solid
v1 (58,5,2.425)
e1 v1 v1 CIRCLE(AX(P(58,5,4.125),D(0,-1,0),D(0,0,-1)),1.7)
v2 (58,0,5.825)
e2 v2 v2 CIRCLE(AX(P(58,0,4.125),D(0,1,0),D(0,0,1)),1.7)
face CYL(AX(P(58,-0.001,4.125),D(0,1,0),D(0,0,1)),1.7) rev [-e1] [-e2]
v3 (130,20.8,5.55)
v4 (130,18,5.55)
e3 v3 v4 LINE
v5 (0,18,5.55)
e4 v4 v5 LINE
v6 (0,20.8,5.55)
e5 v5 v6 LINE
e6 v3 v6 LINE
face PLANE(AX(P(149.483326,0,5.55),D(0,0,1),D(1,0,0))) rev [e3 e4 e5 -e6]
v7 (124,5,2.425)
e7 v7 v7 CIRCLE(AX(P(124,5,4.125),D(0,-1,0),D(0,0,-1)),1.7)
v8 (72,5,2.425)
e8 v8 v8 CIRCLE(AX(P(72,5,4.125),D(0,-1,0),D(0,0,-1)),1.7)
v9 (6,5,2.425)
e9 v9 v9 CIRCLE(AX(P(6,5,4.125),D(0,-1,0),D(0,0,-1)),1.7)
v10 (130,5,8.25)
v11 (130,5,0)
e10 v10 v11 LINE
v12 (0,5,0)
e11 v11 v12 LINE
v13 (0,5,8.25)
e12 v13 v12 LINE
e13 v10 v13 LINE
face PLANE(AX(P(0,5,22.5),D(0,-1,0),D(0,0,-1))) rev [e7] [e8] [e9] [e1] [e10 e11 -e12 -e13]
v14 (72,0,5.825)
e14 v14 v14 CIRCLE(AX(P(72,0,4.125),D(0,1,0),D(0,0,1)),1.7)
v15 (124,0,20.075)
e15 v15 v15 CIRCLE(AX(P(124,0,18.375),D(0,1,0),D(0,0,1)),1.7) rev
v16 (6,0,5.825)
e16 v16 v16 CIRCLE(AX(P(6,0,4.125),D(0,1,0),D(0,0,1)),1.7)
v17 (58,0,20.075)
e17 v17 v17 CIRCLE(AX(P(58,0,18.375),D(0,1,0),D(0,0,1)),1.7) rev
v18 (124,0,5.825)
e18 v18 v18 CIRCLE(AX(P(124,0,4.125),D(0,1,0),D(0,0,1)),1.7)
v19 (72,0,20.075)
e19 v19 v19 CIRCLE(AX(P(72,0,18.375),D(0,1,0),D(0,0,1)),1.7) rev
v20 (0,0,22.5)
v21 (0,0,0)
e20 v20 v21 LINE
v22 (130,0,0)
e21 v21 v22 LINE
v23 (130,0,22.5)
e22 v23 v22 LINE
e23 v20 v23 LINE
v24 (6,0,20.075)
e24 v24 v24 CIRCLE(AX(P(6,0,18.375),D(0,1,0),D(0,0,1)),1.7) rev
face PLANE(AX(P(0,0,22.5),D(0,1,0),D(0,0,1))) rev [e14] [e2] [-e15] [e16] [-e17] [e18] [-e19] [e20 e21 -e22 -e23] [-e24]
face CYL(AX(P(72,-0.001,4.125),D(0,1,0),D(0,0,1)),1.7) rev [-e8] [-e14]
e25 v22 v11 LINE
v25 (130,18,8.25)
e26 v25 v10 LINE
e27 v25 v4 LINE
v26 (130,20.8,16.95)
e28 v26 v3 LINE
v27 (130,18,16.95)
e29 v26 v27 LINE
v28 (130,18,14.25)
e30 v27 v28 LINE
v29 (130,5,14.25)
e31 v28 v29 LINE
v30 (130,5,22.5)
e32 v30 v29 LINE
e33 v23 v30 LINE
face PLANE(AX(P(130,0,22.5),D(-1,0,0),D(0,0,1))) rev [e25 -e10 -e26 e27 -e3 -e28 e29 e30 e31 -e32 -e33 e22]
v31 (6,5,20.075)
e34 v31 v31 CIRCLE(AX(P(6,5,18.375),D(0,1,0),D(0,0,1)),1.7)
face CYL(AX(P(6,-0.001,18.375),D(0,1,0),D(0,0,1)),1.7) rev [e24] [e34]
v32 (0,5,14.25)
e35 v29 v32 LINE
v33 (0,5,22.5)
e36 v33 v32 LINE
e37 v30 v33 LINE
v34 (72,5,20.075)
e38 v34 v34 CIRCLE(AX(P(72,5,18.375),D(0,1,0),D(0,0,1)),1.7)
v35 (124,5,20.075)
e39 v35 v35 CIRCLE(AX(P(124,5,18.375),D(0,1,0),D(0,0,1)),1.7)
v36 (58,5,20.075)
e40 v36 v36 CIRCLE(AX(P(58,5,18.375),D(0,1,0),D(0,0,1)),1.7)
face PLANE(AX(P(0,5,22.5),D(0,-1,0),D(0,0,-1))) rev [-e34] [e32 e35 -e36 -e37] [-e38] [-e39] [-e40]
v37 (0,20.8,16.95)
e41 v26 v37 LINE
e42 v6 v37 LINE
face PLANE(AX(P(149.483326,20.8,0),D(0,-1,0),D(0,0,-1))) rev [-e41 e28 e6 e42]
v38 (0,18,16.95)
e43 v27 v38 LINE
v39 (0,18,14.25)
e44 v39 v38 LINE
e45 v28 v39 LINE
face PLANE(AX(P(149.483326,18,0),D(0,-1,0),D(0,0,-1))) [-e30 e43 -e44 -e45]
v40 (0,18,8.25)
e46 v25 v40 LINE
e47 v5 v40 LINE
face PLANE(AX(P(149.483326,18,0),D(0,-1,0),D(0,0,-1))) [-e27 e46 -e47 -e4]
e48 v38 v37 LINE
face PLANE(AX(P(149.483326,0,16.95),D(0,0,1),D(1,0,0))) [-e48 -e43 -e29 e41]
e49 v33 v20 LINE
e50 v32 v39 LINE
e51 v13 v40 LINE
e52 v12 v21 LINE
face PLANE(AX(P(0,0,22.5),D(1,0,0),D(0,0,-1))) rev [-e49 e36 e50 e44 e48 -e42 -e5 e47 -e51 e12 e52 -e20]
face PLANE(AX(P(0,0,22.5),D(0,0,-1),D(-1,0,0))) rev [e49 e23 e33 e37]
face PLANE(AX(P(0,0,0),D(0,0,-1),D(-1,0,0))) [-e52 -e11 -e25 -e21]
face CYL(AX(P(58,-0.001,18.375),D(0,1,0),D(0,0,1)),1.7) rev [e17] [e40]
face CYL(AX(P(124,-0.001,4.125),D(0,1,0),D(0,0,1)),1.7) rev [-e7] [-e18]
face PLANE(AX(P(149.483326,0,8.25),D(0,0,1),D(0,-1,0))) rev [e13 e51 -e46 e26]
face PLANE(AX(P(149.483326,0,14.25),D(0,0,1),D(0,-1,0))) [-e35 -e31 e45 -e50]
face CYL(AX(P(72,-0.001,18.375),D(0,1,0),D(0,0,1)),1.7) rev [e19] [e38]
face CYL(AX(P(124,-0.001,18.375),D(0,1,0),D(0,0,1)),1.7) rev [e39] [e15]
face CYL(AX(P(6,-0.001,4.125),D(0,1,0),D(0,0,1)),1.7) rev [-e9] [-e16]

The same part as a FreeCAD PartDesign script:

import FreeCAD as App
import Part
import Sketcher
from FreeCAD import Vector


def add_polygon(sketch, points):
    """Adds a closed chain of lines whose ends are joined by coincident constraints."""
    first, n = sketch.GeometryCount, len(points)
    for a, b in zip(points, points[1:] + points[:1]):
        sketch.addGeometry(Part.LineSegment(App.Vector(*a, 0), App.Vector(*b, 0)), False)
    for i in range(n):
        sketch.addConstraint(Sketcher.Constraint("Coincident", first + i, 2, first + (i + 1) % n, 1))

doc = App.newDocument("Part")
body = doc.addObject("PartDesign::Body", "Body")

# Sketch on XY plane
sketch1 = body.newObject("Sketcher::SketchObject", "Sketch")
sketch1.AttachmentSupport = (doc.getObject("XY_Plane"), [""])
sketch1.MapMode = "FlatFace"
add_polygon(sketch1, [(0, 5), (0, 0), (130, 0), (130, 5)])  # lines 0-3
sketch1.addConstraint([
    Sketcher.Constraint("Vertical", 0),
    Sketcher.Constraint("Horizontal", 1),
    Sketcher.Constraint("Vertical", 2),
    Sketcher.Constraint("Horizontal", 3),
    Sketcher.Constraint("Coincident", 0, 2, -1, 1),
    Sketcher.Constraint("DistanceX", 1, 1, 1, 2, 130.0),
    Sketcher.Constraint("DistanceY", 0, 2, 0, 1, 5.0),
])
pad1 = body.newObject("PartDesign::Pad", "Pad")
pad1.Profile = sketch1
pad1.Length = 22.5

# Sketch on YZ plane
sketch2 = body.newObject("Sketcher::SketchObject", "Sketch001")
sketch2.AttachmentSupport = (doc.getObject("YZ_Plane"), [""])
sketch2.MapMode = "FlatFace"
add_polygon(sketch2, [(18, 16.9), (20.8, 16.9), (20.8, 5.5), (18, 5.5), (18, 8.2), (5, 8.2), (5, 14.2), (18, 14.2)])  # lines 0-7
sketch2.addConstraint([
    Sketcher.Constraint("Horizontal", 0),
    Sketcher.Constraint("Vertical", 1),
    Sketcher.Constraint("Horizontal", 2),
    Sketcher.Constraint("Vertical", 3),
    Sketcher.Constraint("Horizontal", 4),
    Sketcher.Constraint("Vertical", 5),
    Sketcher.Constraint("Horizontal", 6),
    Sketcher.Constraint("Vertical", 7),
    Sketcher.Constraint("Vertical", 3, 2, 6, 2),
    Sketcher.Constraint("Equal", 3, 7),
    Sketcher.Constraint("DistanceX", 4, 2, 4, 1, 13.0),
    Sketcher.Constraint("DistanceY", 5, 1, 5, 2, 6.0),
    Sketcher.Constraint("DistanceX", 0, 1, 0, 2, 2.8),
    Sketcher.Constraint("DistanceY", 1, 2, 1, 1, 11.4),
    Sketcher.Constraint("DistanceX", -1, 1, 2, 2, 18.0),
    Sketcher.Constraint("DistanceY", -1, 1, 0, 2, 16.95),
])
pad2 = body.newObject("PartDesign::Pad", "Pad001")
pad2.Profile = sketch2
pad2.Length = 130

# Sketch on XZ plane
sketch3 = body.newObject("Sketcher::SketchObject", "Sketch002")
sketch3.AttachmentSupport = (doc.getObject("XZ_Plane"), [""])
sketch3.MapMode = "FlatFace"
sketch3.AttachmentOffset = App.Placement(Vector(0, 0, -5), App.Rotation())
sketch3.addGeometry(Part.Circle(Vector(6, 18.4, 0), Vector(0, 0, 1), 1.7), False)
sketch3.addConstraint([
    Sketcher.Constraint("Diameter", 0, 3.4),
    Sketcher.Constraint("DistanceX", -1, 1, 0, 3, 6.0),
    Sketcher.Constraint("DistanceY", -1, 1, 0, 3, 18.375),
])
pocket1 = body.newObject("PartDesign::Pocket", "Pocket")
pocket1.Profile = sketch3
pocket1.Type = "UpToFirst"
pocket1.Reversed = True

# Sketch on XZ plane
sketch4 = body.newObject("Sketcher::SketchObject", "Sketch003")
sketch4.AttachmentSupport = (doc.getObject("XZ_Plane"), [""])
sketch4.MapMode = "FlatFace"
sketch4.AttachmentOffset = App.Placement(Vector(0, 0, -5), App.Rotation())
sketch4.addGeometry(Part.Circle(Vector(58, 18.4, 0), Vector(0, 0, 1), 1.7), False)
sketch4.addConstraint([
    Sketcher.Constraint("Diameter", 0, 3.4),
    Sketcher.Constraint("DistanceX", -1, 1, 0, 3, 58.0),
    Sketcher.Constraint("DistanceY", -1, 1, 0, 3, 18.375),
])
pocket2 = body.newObject("PartDesign::Pocket", "Pocket001")
pocket2.Profile = sketch4
pocket2.Type = "UpToFirst"
pocket2.Reversed = True

# Sketch on XZ plane
sketch5 = body.newObject("Sketcher::SketchObject", "Sketch004")
sketch5.AttachmentSupport = (doc.getObject("XZ_Plane"), [""])
sketch5.MapMode = "FlatFace"
sketch5.AttachmentOffset = App.Placement(Vector(0, 0, -5), App.Rotation())
sketch5.addGeometry(Part.Circle(Vector(72, 18.4, 0), Vector(0, 0, 1), 1.7), False)
sketch5.addConstraint([
    Sketcher.Constraint("Diameter", 0, 3.4),
    Sketcher.Constraint("DistanceX", -1, 1, 0, 3, 72.0),
    Sketcher.Constraint("DistanceY", -1, 1, 0, 3, 18.375),
])
pocket3 = body.newObject("PartDesign::Pocket", "Pocket002")
pocket3.Profile = sketch5
pocket3.Type = "UpToFirst"
pocket3.Reversed = True

# Sketch on XZ plane
sketch6 = body.newObject("Sketcher::SketchObject", "Sketch005")
sketch6.AttachmentSupport = (doc.getObject("XZ_Plane"), [""])
sketch6.MapMode = "FlatFace"
sketch6.AttachmentOffset = App.Placement(Vector(0, 0, -5), App.Rotation())
sketch6.addGeometry(Part.Circle(Vector(124, 18.4, 0), Vector(0, 0, 1), 1.7), False)
sketch6.addConstraint([
    Sketcher.Constraint("Diameter", 0, 3.4),
    Sketcher.Constraint("DistanceX", -1, 1, 0, 3, 124.0),
    Sketcher.Constraint("DistanceY", -1, 1, 0, 3, 18.375),
])
pocket4 = body.newObject("PartDesign::Pocket", "Pocket003")
pocket4.Profile = sketch6
pocket4.Type = "UpToFirst"
pocket4.Reversed = True

# Sketch on XZ plane
sketch7 = body.newObject("Sketcher::SketchObject", "Sketch006")
sketch7.AttachmentSupport = (doc.getObject("XZ_Plane"), [""])
sketch7.MapMode = "FlatFace"
sketch7.AttachmentOffset = App.Placement(Vector(0, 0, -5), App.Rotation())
sketch7.addGeometry(Part.Circle(Vector(124, 4.1, 0), Vector(0, 0, 1), 1.7), False)
sketch7.addConstraint([
    Sketcher.Constraint("Diameter", 0, 3.4),
    Sketcher.Constraint("DistanceX", -1, 1, 0, 3, 124.0),
    Sketcher.Constraint("DistanceY", -1, 1, 0, 3, 4.125),
])
pocket5 = body.newObject("PartDesign::Pocket", "Pocket004")
pocket5.Profile = sketch7
pocket5.Type = "UpToFirst"
pocket5.Reversed = True

# Sketch on XZ plane
sketch8 = body.newObject("Sketcher::SketchObject", "Sketch007")
sketch8.AttachmentSupport = (doc.getObject("XZ_Plane"), [""])
sketch8.MapMode = "FlatFace"
sketch8.AttachmentOffset = App.Placement(Vector(0, 0, -5), App.Rotation())
sketch8.addGeometry(Part.Circle(Vector(72, 4.1, 0), Vector(0, 0, 1), 1.7), False)
sketch8.addConstraint([
    Sketcher.Constraint("Diameter", 0, 3.4),
    Sketcher.Constraint("DistanceX", -1, 1, 0, 3, 72.0),
    Sketcher.Constraint("DistanceY", -1, 1, 0, 3, 4.125),
])
pocket6 = body.newObject("PartDesign::Pocket", "Pocket005")
pocket6.Profile = sketch8
pocket6.Type = "UpToFirst"
pocket6.Reversed = True

# Sketch on XZ plane
sketch9 = body.newObject("Sketcher::SketchObject", "Sketch008")
sketch9.AttachmentSupport = (doc.getObject("XZ_Plane"), [""])
sketch9.MapMode = "FlatFace"
sketch9.AttachmentOffset = App.Placement(Vector(0, 0, -5), App.Rotation())
sketch9.addGeometry(Part.Circle(Vector(58, 4.1, 0), Vector(0, 0, 1), 1.7), False)
sketch9.addConstraint([
    Sketcher.Constraint("Diameter", 0, 3.4),
    Sketcher.Constraint("DistanceX", -1, 1, 0, 3, 58.0),
    Sketcher.Constraint("DistanceY", -1, 1, 0, 3, 4.125),
])
pocket7 = body.newObject("PartDesign::Pocket", "Pocket006")
pocket7.Profile = sketch9
pocket7.Type = "UpToFirst"
pocket7.Reversed = True

# Sketch on XZ plane
sketch10 = body.newObject("Sketcher::SketchObject", "Sketch009")
sketch10.AttachmentSupport = (doc.getObject("XZ_Plane"), [""])
sketch10.MapMode = "FlatFace"
sketch10.AttachmentOffset = App.Placement(Vector(0, 0, -5), App.Rotation())
sketch10.addGeometry(Part.Circle(Vector(6, 4.1, 0), Vector(0, 0, 1), 1.7), False)
sketch10.addConstraint([
    Sketcher.Constraint("Diameter", 0, 3.4),
    Sketcher.Constraint("DistanceX", -1, 1, 0, 3, 6.0),
    Sketcher.Constraint("DistanceY", -1, 1, 0, 3, 4.125),
])
pocket8 = body.newObject("PartDesign::Pocket", "Pocket007")
pocket8.Profile = sketch10
pocket8.Type = "UpToFirst"
pocket8.Reversed = True

doc.recompute()
